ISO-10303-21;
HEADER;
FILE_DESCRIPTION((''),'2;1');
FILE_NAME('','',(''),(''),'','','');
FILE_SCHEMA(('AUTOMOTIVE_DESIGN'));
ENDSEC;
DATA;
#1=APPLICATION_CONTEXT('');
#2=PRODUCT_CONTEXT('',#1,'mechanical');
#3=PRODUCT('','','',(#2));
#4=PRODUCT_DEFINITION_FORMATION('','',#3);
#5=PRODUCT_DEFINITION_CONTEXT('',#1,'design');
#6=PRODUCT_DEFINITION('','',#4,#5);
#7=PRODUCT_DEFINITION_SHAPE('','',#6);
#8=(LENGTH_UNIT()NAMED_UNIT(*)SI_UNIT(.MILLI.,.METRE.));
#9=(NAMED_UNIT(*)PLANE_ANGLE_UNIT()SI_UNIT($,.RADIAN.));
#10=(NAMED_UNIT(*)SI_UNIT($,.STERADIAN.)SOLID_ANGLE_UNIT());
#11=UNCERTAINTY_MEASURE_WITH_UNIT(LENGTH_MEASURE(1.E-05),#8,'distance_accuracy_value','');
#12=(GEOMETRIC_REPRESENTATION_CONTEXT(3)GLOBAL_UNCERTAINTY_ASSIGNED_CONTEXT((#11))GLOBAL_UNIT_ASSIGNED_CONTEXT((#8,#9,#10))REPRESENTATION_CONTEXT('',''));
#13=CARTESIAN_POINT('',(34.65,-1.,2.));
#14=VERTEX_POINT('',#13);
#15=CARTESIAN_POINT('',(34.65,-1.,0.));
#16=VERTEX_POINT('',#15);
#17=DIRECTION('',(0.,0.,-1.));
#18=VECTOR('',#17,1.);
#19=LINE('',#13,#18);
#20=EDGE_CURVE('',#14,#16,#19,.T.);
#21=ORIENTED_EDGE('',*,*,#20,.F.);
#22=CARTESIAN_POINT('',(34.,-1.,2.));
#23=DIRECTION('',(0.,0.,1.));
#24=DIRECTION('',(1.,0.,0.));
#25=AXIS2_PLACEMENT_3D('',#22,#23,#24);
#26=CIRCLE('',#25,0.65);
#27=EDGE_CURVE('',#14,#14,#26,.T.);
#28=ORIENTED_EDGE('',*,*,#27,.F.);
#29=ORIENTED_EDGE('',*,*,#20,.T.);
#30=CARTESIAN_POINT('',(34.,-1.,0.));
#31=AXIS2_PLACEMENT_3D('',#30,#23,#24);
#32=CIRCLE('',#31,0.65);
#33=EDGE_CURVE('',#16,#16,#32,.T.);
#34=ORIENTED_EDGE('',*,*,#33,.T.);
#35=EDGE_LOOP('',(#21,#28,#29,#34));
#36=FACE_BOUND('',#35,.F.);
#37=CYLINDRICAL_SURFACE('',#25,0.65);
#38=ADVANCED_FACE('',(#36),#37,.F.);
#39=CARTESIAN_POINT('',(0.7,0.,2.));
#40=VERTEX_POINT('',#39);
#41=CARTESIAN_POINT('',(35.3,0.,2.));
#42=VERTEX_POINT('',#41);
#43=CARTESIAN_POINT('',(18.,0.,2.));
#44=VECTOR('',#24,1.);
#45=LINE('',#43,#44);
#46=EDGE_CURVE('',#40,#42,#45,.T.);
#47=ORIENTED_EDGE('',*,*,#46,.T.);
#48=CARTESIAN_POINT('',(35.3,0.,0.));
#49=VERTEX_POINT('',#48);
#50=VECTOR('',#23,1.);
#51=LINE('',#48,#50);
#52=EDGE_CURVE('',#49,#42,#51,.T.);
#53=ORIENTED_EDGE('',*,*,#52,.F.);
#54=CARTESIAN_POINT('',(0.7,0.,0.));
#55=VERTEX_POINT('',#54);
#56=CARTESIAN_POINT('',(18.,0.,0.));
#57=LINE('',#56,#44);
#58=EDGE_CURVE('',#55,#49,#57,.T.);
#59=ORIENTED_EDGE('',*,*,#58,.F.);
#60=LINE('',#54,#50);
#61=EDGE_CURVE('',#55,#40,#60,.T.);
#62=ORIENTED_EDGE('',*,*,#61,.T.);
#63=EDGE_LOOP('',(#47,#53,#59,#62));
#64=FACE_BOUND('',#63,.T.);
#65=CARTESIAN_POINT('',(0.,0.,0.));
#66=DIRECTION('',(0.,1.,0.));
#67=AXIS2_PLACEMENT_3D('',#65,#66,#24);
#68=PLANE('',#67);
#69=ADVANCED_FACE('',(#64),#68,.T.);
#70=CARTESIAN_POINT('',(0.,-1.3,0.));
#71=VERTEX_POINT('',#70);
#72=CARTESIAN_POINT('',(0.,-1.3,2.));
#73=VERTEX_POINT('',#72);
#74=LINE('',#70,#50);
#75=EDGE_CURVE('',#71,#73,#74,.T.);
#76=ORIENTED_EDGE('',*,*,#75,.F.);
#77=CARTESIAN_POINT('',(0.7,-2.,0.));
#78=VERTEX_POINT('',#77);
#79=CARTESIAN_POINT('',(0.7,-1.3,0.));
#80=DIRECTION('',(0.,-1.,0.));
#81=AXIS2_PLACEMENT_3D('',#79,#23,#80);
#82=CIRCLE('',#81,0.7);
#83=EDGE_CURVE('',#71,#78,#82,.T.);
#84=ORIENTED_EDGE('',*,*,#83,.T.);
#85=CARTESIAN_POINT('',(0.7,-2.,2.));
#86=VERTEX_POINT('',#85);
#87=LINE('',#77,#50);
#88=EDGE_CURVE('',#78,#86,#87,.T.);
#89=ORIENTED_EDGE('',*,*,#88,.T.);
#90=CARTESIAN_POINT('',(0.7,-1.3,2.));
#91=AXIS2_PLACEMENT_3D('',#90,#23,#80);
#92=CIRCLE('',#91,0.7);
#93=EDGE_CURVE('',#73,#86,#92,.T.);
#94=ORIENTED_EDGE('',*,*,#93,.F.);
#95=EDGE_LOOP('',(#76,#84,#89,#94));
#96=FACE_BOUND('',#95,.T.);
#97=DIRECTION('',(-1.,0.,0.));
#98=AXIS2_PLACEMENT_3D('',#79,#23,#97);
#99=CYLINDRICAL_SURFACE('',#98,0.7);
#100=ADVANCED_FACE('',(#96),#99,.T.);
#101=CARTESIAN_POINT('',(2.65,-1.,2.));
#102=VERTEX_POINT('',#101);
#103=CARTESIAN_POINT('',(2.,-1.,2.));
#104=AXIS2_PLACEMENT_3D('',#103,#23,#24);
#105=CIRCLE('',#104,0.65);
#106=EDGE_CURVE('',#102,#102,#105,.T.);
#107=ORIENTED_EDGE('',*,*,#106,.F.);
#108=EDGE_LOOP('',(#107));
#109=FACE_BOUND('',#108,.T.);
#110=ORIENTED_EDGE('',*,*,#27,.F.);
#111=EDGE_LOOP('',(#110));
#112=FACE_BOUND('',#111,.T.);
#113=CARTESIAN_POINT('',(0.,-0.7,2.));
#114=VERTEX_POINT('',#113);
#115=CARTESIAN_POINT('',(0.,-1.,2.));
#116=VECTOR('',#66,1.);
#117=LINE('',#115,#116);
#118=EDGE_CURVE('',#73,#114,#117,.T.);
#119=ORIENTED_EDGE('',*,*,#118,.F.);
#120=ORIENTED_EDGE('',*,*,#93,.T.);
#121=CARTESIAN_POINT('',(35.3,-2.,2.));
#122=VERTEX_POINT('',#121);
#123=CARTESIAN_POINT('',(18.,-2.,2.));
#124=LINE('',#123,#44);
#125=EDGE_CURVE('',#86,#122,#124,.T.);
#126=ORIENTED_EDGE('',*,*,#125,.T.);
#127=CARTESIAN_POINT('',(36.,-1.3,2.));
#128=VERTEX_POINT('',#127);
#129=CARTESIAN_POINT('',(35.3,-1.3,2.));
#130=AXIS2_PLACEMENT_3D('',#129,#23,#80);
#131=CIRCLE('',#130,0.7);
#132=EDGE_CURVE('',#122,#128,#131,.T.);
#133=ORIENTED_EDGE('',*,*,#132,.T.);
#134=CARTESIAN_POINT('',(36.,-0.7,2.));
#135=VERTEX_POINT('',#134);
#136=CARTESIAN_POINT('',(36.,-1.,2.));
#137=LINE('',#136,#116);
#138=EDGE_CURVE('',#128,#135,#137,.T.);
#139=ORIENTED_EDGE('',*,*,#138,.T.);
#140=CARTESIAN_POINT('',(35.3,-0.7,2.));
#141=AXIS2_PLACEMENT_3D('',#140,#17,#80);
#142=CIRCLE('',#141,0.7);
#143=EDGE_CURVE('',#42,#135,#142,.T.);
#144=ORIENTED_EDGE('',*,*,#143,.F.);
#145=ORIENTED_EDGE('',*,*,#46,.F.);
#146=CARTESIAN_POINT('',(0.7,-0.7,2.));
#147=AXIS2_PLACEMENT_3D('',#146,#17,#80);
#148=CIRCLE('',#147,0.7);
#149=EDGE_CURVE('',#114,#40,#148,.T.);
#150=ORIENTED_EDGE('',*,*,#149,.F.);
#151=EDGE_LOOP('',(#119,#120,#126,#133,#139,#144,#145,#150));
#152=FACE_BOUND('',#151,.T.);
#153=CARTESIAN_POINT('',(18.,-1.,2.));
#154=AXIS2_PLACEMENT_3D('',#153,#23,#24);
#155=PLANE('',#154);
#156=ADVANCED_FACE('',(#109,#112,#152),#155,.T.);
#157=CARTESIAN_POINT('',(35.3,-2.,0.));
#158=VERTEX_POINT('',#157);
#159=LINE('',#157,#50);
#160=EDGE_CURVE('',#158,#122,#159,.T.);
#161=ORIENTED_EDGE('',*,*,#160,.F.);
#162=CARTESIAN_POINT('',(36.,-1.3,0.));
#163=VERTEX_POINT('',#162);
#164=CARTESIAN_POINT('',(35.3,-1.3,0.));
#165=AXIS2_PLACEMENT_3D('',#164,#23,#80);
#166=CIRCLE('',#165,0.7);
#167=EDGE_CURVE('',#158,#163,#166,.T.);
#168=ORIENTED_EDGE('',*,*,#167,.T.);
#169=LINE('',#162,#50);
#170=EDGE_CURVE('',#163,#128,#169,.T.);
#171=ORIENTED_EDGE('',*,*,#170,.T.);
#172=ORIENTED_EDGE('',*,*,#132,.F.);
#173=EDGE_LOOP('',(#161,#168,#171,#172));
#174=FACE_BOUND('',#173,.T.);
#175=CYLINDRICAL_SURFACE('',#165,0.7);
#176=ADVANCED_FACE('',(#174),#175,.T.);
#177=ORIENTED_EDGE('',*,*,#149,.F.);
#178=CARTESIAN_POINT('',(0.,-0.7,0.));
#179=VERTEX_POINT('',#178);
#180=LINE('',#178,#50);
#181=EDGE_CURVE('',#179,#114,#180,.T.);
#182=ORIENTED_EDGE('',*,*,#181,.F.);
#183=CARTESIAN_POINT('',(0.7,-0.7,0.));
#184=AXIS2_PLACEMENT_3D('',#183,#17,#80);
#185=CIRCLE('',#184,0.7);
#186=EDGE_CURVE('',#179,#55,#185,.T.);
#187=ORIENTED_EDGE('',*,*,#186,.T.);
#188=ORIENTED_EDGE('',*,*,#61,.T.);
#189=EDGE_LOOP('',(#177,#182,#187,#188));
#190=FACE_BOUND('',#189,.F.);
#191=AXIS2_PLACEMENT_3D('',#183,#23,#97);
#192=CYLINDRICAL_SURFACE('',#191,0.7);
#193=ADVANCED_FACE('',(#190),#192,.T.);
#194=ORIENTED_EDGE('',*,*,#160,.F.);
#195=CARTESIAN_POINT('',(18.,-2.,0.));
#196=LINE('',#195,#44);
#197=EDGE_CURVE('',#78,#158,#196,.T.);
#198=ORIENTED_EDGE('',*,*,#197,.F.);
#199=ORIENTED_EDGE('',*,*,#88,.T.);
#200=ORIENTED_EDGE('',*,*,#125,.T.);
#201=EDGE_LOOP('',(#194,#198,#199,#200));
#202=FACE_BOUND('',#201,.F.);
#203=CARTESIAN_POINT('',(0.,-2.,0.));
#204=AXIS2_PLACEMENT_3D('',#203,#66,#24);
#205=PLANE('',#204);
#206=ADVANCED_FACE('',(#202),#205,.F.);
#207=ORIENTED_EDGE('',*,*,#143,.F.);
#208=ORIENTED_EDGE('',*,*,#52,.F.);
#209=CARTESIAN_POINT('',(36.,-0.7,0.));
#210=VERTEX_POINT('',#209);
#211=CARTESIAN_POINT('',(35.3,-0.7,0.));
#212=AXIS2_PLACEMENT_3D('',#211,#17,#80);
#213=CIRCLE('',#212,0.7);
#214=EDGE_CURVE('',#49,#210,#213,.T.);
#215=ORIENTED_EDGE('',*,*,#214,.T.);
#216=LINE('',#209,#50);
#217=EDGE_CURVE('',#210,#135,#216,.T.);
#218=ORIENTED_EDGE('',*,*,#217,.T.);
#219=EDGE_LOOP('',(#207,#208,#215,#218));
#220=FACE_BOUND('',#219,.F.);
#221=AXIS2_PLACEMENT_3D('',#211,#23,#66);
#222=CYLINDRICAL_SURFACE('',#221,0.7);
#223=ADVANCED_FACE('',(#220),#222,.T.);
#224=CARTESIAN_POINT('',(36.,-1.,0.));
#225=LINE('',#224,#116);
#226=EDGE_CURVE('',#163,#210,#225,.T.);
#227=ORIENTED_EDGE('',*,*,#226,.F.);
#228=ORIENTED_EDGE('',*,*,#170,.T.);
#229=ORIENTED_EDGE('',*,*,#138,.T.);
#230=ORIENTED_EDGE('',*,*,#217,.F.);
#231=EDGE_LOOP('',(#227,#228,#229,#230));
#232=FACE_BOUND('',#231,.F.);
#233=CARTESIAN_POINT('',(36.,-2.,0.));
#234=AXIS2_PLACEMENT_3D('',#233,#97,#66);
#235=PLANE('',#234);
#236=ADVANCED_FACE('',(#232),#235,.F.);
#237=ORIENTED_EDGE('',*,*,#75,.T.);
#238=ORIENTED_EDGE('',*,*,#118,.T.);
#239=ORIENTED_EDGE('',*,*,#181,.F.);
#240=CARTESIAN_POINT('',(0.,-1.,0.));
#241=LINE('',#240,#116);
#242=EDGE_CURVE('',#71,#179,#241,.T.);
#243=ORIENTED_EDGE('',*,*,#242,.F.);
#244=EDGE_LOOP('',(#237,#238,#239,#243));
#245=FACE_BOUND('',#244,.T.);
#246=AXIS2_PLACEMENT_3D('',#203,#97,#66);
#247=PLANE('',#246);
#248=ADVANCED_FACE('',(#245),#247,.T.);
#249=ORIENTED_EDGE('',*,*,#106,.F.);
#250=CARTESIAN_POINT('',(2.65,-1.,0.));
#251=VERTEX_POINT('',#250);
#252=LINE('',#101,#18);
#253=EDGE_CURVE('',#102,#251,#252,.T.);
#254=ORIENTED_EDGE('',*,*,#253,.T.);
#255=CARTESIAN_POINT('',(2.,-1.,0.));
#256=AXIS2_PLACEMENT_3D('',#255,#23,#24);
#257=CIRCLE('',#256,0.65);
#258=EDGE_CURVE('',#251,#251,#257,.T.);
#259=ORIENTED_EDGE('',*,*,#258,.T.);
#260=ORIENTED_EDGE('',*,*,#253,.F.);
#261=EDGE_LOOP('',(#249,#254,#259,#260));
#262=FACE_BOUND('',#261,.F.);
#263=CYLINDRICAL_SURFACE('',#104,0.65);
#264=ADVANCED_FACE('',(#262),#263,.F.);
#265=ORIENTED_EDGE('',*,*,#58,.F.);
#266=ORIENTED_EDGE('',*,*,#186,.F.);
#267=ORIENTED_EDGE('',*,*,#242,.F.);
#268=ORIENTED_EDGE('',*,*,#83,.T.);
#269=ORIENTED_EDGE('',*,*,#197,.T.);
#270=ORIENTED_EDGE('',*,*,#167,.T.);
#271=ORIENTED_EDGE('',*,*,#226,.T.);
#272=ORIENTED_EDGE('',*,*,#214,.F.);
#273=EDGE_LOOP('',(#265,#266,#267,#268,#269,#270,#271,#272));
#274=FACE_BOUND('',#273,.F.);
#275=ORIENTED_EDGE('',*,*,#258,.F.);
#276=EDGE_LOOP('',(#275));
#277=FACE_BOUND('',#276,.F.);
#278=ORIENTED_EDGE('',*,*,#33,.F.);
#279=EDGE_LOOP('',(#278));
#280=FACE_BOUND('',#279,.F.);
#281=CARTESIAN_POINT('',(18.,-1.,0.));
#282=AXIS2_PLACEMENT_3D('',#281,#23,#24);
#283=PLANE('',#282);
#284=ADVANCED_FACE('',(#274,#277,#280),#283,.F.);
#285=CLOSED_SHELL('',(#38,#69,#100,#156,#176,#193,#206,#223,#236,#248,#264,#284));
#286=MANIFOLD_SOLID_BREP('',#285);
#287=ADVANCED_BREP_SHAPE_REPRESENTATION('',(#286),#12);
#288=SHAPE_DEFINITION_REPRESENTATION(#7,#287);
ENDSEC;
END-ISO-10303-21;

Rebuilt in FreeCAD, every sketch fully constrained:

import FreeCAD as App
import Part
import Sketcher
from FreeCAD import Vector
Q = App.Units.Quantity


def edges_at(feature, points):
    """Names of the edges that pass closest to the given points."""
    edges = feature.Shape.Edges
    near = lambda p: min(range(len(edges)), key=lambda i: edges[i].distToShape(Part.Vertex(*p))[0])
    return sorted({f"Edge{near(p) + 1}" for p in points})

doc = App.newDocument("Part")
params = doc.addObject("Spreadsheet::Sheet", "Params")
for row, (alias, value) in enumerate([
    ("sketch1_width", "36 mm"),
    ("sketch1_height", "2 mm"),
    ("pad1_length", "2 mm"),
    ("sketch2_diameter", "1.3 mm"),
    ("pocket1_length", "5 mm"),
    ("fillet_radius", "0.7 mm"),
], start=1):
    params.set(f"A{row}", alias)
    params.set(f"B{row}", "=" + value)
    params.setAlias(f"B{row}", alias)

body = doc.addObject("PartDesign::Body", "Body")

# Sketch on XY plane
sketch1 = body.newObject("Sketcher::SketchObject", "Sketch")
sketch1.AttachmentSupport = (doc.getObject("XY_Plane"), [""])
sketch1.MapMode = "FlatFace"
sketch1.addGeometry([
    Part.LineSegment(Vector(0, 0, 0), Vector(0, -2, 0)),
    Part.LineSegment(Vector(0, -2, 0), Vector(36, -2, 0)),
    Part.LineSegment(Vector(36, -2, 0), Vector(36, 0, 0)),
    Part.LineSegment(Vector(36, 0, 0), Vector(0, 0, 0)),
], False)
sketch1.addConstraint([
    Sketcher.Constraint("Coincident", 0, 2, 1, 1),
    Sketcher.Constraint("Coincident", 1, 2, 2, 1),
    Sketcher.Constraint("Coincident", 2, 2, 3, 1),
    Sketcher.Constraint("Coincident", 3, 2, 0, 1),
    Sketcher.Constraint("Vertical", 0),
    Sketcher.Constraint("Horizontal", 1),
    Sketcher.Constraint("Vertical", 2),
    Sketcher.Constraint("Horizontal", 3),
    Sketcher.Constraint("Coincident", 3, 2, -1, 1),
    Sketcher.Constraint("DistanceX", 1, 1, 1, 2, Q("36 mm")),
    Sketcher.Constraint("DistanceY", 0, 2, 0, 1, Q("2 mm")),
])
sketch1.setExpression("Constraints[9]", "Params.sketch1_width")
sketch1.setExpression("Constraints[10]", "Params.sketch1_height")
pad1 = body.newObject("PartDesign::Pad", "Pad")
pad1.Profile = sketch1
pad1.setExpression("Length", "Params.pad1_length")

# Sketch on XY plane
sketch2 = body.newObject("Sketcher::SketchObject", "Sketch001")
sketch2.AttachmentSupport = (doc.getObject("XY_Plane"), [""])
sketch2.MapMode = "FlatFace"
sketch2.AttachmentOffset = App.Placement(Vector(0, 0, 2), App.Rotation())
sketch2.addGeometry([
    Part.Circle(Vector(2, -1, 0), Vector(0, 0, 1), 0.7),
    Part.Circle(Vector(34, -1, 0), Vector(0, 0, 1), 0.7),
], False)
sketch2.addConstraint([
    Sketcher.Constraint("Equal", 0, 1),
    Sketcher.Constraint("Horizontal", 0, 3, 1, 3),
    Sketcher.Constraint("Diameter", 0, Q("1.3 mm")),
    Sketcher.Constraint("DistanceX", -1, 1, 0, 3, Q("2 mm")),
    Sketcher.Constraint("DistanceY", 0, 3, -1, 1, Q("1 mm")),
    Sketcher.Constraint("DistanceX", -1, 1, 1, 3, Q("34 mm")),
])
sketch2.setExpression("Constraints[2]", "Params.sketch2_diameter")
pocket1 = body.newObject("PartDesign::Pocket", "Pocket")
pocket1.Profile = sketch2
pocket1.setExpression("Length", "Params.pocket1_length")
doc.recompute()

fillet = body.newObject("PartDesign::Fillet", "Fillet")
fillet.Base = (pocket1, edges_at(pocket1, [
    (0, 0, 1),
    (0, -2, 1),
    (36, -2, 1),
    (36, 0, 1),
]))
fillet.setExpression("Radius", "Params.fillet_radius")

doc.recompute()
